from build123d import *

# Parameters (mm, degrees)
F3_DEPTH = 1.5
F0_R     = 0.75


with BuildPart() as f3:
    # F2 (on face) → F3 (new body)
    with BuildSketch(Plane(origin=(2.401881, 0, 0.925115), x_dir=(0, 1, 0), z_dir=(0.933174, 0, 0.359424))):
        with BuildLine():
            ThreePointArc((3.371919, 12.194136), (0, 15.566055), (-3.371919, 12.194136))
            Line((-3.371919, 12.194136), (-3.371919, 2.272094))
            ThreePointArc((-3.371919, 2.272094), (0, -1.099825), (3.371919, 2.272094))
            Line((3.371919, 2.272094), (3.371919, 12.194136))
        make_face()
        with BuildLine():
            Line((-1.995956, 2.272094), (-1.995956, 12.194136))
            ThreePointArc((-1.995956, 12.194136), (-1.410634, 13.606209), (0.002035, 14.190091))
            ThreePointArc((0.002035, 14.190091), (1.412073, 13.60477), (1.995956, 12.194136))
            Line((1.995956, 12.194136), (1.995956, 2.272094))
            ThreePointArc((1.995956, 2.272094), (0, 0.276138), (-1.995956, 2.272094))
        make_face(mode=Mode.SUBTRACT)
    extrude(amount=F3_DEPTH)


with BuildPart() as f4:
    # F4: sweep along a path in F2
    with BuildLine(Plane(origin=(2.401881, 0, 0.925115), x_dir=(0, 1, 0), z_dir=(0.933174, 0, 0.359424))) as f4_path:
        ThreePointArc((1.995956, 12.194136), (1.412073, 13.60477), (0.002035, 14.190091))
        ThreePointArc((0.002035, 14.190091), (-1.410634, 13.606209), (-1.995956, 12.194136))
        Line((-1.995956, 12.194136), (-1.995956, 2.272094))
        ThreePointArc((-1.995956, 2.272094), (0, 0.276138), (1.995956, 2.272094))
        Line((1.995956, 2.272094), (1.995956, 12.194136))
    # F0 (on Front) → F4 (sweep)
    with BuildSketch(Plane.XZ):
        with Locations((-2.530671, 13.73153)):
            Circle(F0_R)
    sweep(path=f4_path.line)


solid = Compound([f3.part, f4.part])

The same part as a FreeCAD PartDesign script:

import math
import FreeCAD as App
import Part
import Sketcher
from FreeCAD import Vector

doc = App.newDocument("Part")
body = doc.addObject("PartDesign::Body", "Body")

# Sketch on an angled plane
sketch1 = body.newObject("Sketcher::SketchObject", "Sketch")
sketch1.Placement = App.Placement(Vector(2.401881, 0, 0.925115), App.Rotation(Vector(0, 1, 0), Vector(-0.359424121, 0, 0.933174314), Vector(0.933174314, 0, 0.359424121), "ZXY"))
sketch1.addGeometry([
    Part.ArcOfCircle(Part.Circle(Vector(0, 12.194136, 0), Vector(0, 0, 1), 3.371919), math.radians(0), math.radians(180)),  # 0
    Part.LineSegment(Vector(-3.371919, 12.194136, 0), Vector(-3.371919, 2.272094, 0)),  # 1
    Part.ArcOfCircle(Part.Circle(Vector(0, 2.272094, 0), Vector(0, 0, 1), 3.371919), math.radians(180), math.radians(360)),  # 2
    Part.LineSegment(Vector(3.371919, 2.272094, 0), Vector(3.371919, 12.194136, 0)),  # 3
    Part.ArcOfCircle(Part.Circle(Vector(0, 2.272094, 0), Vector(0, 0, 1), 1.995956), math.radians(180), math.radians(360)),  # 4
    Part.LineSegment(Vector(-1.995956, 2.272094, 0), Vector(-1.995956, 12.194136, 0)),  # 5
    Part.ArcOfCircle(Part.Circle(Vector(0.000001, 12.194135, 0), Vector(0, 0, 1), 1.995957), math.radians(89.941618), math.radians(179.999966)),  # 6
    Part.ArcOfCircle(Part.Circle(Vector(-0.000001, 12.194135, 0), Vector(0, 0, 1), 1.995957), math.radians(0.000034), math.radians(89.941548)),  # 7
    Part.LineSegment(Vector(1.995956, 12.194136, 0), Vector(1.995956, 2.272094, 0)),  # 8
], False)
sketch1.addConstraint([
    Sketcher.Constraint("Tangent", 0, 2, 1, 1),
    Sketcher.Constraint("Tangent", 1, 2, 2, 1),
    Sketcher.Constraint("Tangent", 2, 2, 3, 1),
    Sketcher.Constraint("Tangent", 3, 2, 0, 1),
    Sketcher.Constraint("Tangent", 4, 1, 5, 1),
    Sketcher.Constraint("Tangent", 5, 2, 6, 2),
    Sketcher.Constraint("Tangent", 6, 1, 7, 2),
    Sketcher.Constraint("Tangent", 7, 1, 8, 1),
    Sketcher.Constraint("Tangent", 8, 2, 4, 2),
    Sketcher.Constraint("Vertical", 1),
    Sketcher.Constraint("Vertical", 3),
    Sketcher.Constraint("Vertical", 5),
    Sketcher.Constraint("Vertical", 8),
    Sketcher.Constraint("Coincident", 4, 3, 2, 3),
    Sketcher.Constraint("Coincident", 6, 3, 0, 3),
    Sketcher.Constraint("PointOnObject", 0, 3, -2),
    Sketcher.Constraint("Radius", 0, 3.371919),
    Sketcher.Constraint("Radius", 4, 1.995956),
    Sketcher.Constraint("DistanceY", 1, 2, 1, 1, 9.922042),
    Sketcher.Constraint("DistanceY", -1, 1, 6, 1, 14.190091),
    Sketcher.Constraint("DistanceX", 5, 2, 6, 1, 1.997991),
])
pad1 = body.newObject("PartDesign::Pad", "Pad")
pad1.Profile = sketch1
pad1.Length = 1.5
body2 = doc.addObject("PartDesign::Body", "Body001")

# Sketch on XZ plane
sketch2 = body2.newObject("Sketcher::SketchObject", "Sketch001")
sketch2.AttachmentSupport = (doc.getObject("XZ_Plane001"), [""])
sketch2.MapMode = "FlatFace"
sketch2.addGeometry(Part.Circle(Vector(-2.530671, 13.73153, 0), Vector(0, 0, 1), 0.75), False)
sketch2.addConstraint([
    Sketcher.Constraint("Diameter", 0, 1.5),
    Sketcher.Constraint("DistanceX", 0, 3, -1, 1, 2.530671),
    Sketcher.Constraint("DistanceY", -1, 1, 0, 3, 13.73153),
])

# Sketch on an angled plane
sketch3 = body2.newObject("Sketcher::SketchObject", "Sketch002")
sketch3.Placement = App.Placement(Vector(2.401881, 0, 0.925115), App.Rotation(Vector(0.359424121, 0, -0.933174314), Vector(0, 0.999999999, 0), Vector(0.933174314, 0, 0.359424121), "ZXY"))
sketch3.addGeometry([
    Part.ArcOfCircle(Part.Circle(Vector(-12.194134, -0.000001, 0), Vector(0, 0, 1), 1.995957), math.radians(90.000034), math.radians(179.941548)),  # 0
    Part.ArcOfCircle(Part.Circle(Vector(-12.194134, 0.000001, 0), Vector(0, 0, 1), 1.995957), math.radians(179.941618), math.radians(269.999966)),  # 1
    Part.LineSegment(Vector(-12.194136, -1.995956, 0), Vector(-2.272094, -1.995956, 0)),  # 2
    Part.ArcOfCircle(Part.Circle(Vector(-2.272094, 0, 0), Vector(0, 0, 1), 1.995956), math.radians(-90), math.radians(90)),  # 3
    Part.LineSegment(Vector(-2.272094, 1.995956, 0), Vector(-12.194136, 1.995956, 0)),  # 4
], False)
sketch3.addConstraint([
    Sketcher.Constraint("Tangent", 0, 2, 1, 1),
    Sketcher.Constraint("Tangent", 1, 2, 2, 1),
    Sketcher.Constraint("Tangent", 2, 2, 3, 1),
    Sketcher.Constraint("Tangent", 3, 2, 4, 1),
    Sketcher.Constraint("Tangent", 4, 2, 0, 1),
    Sketcher.Constraint("Horizontal", 2),
    Sketcher.Constraint("Horizontal", 4),
    Sketcher.Constraint("Equal", 0, 1),
    Sketcher.Constraint("PointOnObject", 0, 3, -1),
    Sketcher.Constraint("Radius", 0, 1.995957),
    Sketcher.Constraint("DistanceX", 2, 1, 2, 2, 9.922042),
    Sketcher.Constraint("DistanceX", 0, 2, -1, 1, 14.190091),
    Sketcher.Constraint("DistanceY", 1, 2, 0, 2, 1.997991),
])
doc.recompute()

additivepipe = body2.newObject("PartDesign::AdditivePipe", "AdditivePipe")
additivepipe.Profile = sketch2
additivepipe.Spine = (sketch3, ["Edge1", "Edge2", "Edge3", "Edge4", "Edge5"])

doc.recompute()
